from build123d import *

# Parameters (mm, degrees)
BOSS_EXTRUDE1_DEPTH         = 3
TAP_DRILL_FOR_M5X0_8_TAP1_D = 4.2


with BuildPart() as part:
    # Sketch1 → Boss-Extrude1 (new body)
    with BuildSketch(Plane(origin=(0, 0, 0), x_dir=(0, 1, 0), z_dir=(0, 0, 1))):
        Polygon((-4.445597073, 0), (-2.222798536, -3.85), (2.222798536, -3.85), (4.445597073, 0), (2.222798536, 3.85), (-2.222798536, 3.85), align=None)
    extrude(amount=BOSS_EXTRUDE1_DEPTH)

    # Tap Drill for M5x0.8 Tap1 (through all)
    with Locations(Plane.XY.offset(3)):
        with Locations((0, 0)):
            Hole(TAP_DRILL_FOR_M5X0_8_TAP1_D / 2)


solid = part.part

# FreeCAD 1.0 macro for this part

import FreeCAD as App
import Part
import Sketcher

V = App.Vector
Q = App.Units.Quantity


def add_polygon(sketch, points):
    """Adds a closed chain of lines whose ends are joined by coincident constraints."""
    first, n = sketch.GeometryCount, len(points)
    for a, b in zip(points, points[1:] + points[:1]):
        sketch.addGeometry(Part.LineSegment(App.Vector(*a, 0), App.Vector(*b, 0)), False)
    for i in range(n):
        sketch.addConstraint(Sketcher.Constraint("Coincident", first + i, 2, first + (i + 1) % n, 1))

doc = App.newDocument("Part")
body = doc.addObject("PartDesign::Body", "Body")

# Sketch on XY plane
sketch1 = doc.addObject("Sketcher::SketchObject", "Sketch")
body.addObject(sketch1)
sketch1.AttachmentSupport = (doc.XY_Plane, [""])
sketch1.MapMode = "FlatFace"
add_polygon(sketch1, [(0, -4.4), (3.9, -2.2), (3.9, 2.2), (0, 4.4), (-3.9, 2.2), (-3.9, -2.2)])  # lines 0-5
sketch1.addConstraint([
    Sketcher.Constraint("Vertical", 1),
    Sketcher.Constraint("Vertical", 4),
    Sketcher.Constraint("Symmetric", 0, 2, 3, 2, -1, 1),
    Sketcher.Constraint("Symmetric", 2, 2, 5, 2, -1, 1),
    Sketcher.Constraint("PointOnObject", 2, 2, -2),
    Sketcher.Constraint("Parallel", 2, 5),
    Sketcher.Constraint("Horizontal", 1, 2, 3, 2),
    Sketcher.Constraint("Angle", 0, Q("30 deg")),
    Sketcher.Constraint("DistanceX", 3, 2, 1, 2, Q("7.7 mm")),
    Sketcher.Constraint("DistanceY", 0, 2, -1, 1, Q("2.222799 mm")),
])
pad1 = doc.addObject("PartDesign::Pad", "Pad")
body.addObject(pad1)
pad1.Profile = sketch1
pad1.Length = 3

# Sketch on XY plane
sketch2 = doc.addObject("Sketcher::SketchObject", "Sketch001")
body.addObject(sketch2)
sketch2.AttachmentSupport = (doc.XY_Plane, [""])
sketch2.MapMode = "FlatFace"
sketch2.AttachmentOffset = App.Placement(V(0, 0, 3), App.Rotation())
sketch2.addGeometry(Part.Circle(V(0, 0, 0), V(0, 0, 1), 2.1), False)
sketch2.addConstraint([
    Sketcher.Constraint("Coincident", 0, 3, -1, 1),
    Sketcher.Constraint("Diameter", 0, Q("4.2 mm")),
])
doc.recompute()
hole = doc.addObject("PartDesign::Hole", "Hole")
body.addObject(hole)
hole.Profile = sketch2
hole.ThreadType = "None"
hole.Diameter = 4.2
hole.DepthType = "ThroughAll"

doc.recompute()
